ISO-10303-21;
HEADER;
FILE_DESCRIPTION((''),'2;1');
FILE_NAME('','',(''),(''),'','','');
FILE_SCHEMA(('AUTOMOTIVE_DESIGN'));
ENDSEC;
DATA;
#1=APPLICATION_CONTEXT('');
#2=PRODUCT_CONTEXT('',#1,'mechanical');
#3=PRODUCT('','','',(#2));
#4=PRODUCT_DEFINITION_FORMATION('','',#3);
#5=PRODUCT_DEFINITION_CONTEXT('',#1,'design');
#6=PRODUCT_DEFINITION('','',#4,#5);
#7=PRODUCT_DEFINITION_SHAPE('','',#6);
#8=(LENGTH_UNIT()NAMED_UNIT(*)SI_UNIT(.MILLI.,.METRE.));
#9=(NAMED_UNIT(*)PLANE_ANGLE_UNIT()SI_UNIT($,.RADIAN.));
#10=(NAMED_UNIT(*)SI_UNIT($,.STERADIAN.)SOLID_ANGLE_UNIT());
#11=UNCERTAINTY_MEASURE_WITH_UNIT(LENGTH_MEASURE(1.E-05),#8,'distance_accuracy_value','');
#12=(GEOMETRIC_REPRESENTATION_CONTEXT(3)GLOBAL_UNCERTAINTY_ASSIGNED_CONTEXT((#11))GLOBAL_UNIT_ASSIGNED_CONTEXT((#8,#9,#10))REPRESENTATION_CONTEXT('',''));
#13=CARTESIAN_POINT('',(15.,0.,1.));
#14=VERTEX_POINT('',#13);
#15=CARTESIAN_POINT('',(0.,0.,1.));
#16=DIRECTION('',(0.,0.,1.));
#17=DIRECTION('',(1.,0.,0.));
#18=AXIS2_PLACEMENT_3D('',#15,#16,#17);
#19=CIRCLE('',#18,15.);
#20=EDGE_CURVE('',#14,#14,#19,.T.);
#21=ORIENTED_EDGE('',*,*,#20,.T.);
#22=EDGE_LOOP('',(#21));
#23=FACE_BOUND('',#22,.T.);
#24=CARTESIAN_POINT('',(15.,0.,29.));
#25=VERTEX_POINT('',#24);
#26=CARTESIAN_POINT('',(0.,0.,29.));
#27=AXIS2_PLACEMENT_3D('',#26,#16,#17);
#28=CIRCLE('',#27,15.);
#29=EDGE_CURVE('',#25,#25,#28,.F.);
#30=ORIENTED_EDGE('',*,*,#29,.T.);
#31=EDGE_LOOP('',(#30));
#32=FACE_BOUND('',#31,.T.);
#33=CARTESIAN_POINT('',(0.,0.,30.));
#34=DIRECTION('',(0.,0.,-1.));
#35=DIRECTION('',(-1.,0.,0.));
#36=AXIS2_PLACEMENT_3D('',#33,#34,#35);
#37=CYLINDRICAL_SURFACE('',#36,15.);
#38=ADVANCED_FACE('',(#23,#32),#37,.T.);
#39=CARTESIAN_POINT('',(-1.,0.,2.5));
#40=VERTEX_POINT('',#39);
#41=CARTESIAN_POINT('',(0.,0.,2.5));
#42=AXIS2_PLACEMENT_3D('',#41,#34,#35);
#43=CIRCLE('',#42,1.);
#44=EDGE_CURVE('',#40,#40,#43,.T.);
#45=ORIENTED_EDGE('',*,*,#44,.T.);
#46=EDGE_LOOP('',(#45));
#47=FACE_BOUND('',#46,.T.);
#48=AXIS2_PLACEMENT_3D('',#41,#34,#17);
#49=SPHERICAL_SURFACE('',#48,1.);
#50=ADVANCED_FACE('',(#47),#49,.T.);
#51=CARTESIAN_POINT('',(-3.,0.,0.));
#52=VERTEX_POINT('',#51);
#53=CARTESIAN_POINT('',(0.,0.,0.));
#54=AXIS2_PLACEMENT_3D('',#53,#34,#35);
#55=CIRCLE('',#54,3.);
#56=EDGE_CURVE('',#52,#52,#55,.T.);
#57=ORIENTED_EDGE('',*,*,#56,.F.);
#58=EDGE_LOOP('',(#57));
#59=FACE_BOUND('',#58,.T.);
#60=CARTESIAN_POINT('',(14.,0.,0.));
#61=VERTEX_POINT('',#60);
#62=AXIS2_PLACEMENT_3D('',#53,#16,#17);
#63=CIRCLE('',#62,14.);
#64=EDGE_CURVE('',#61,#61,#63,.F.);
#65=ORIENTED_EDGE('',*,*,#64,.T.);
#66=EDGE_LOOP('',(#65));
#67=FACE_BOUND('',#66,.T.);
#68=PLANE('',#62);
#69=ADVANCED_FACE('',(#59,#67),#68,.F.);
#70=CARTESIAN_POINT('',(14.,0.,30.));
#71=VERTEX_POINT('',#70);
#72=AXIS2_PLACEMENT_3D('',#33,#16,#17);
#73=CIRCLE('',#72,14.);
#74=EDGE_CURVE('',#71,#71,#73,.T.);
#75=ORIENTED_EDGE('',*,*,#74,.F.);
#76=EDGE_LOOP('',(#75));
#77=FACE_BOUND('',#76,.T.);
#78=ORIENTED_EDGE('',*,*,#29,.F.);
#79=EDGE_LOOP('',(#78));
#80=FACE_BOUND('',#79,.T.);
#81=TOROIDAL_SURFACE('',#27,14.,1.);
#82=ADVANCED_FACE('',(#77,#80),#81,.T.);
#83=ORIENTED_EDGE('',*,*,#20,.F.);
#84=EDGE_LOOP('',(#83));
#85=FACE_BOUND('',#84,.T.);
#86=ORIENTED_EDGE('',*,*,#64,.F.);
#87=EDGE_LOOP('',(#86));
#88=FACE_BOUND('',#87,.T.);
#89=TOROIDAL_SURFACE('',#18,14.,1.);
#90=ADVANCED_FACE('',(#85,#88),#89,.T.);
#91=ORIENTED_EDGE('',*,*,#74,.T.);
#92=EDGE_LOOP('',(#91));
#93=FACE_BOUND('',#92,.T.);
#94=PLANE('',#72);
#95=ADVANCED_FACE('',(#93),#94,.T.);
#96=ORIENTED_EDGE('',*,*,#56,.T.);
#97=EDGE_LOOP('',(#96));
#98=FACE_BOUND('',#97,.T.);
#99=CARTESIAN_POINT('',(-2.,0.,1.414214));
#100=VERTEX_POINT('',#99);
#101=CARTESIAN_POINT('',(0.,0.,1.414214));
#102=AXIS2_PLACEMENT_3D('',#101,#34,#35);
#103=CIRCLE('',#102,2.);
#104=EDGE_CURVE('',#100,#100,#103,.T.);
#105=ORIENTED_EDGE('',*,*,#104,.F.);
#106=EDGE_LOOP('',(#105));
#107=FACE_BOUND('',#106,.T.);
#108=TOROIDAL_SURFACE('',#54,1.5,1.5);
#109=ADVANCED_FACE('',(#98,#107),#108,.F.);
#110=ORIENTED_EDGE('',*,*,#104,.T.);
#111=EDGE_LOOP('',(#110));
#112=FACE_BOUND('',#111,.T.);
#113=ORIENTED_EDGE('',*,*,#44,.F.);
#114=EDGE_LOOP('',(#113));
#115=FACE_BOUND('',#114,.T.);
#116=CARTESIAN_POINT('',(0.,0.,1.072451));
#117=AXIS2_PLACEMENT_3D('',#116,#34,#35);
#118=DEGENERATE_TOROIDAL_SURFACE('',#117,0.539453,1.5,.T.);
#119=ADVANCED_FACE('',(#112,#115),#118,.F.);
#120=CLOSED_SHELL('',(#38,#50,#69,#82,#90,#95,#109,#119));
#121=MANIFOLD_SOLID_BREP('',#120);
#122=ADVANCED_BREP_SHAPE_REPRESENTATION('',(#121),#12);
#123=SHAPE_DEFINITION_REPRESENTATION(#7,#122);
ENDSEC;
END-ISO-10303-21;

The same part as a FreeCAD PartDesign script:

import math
import FreeCAD as App
import Part
import Sketcher
Q = App.Units.Quantity


def edges_at(feature, points):
    """Names of the edges that pass closest to the given points."""
    edges = feature.Shape.Edges
    near = lambda p: min(range(len(edges)), key=lambda i: edges[i].distToShape(Part.Vertex(*p))[0])
    return sorted({f"Edge{near(p) + 1}" for p in points})

doc = App.newDocument("Part")
params = doc.addObject("Spreadsheet::Sheet", "Params")
for row, (alias, value) in enumerate([
    ("sketch1_diameter", "30 mm"),
    ("pad1_length", "30 mm"),
    ("fillet_radius", "1 mm"),
    ("sketch2_radius", "1 mm"),
    ("sketch2_radius2", "1.5 mm"),
    ("sketch2_width", "3 mm"),
    ("sketch2_height", "1.5 mm"),
    ("groove_angle", "360 deg"),
], start=1):
    params.set(f"A{row}", alias)
    params.set(f"B{row}", "=" + value)
    params.setAlias(f"B{row}", alias)

body = doc.addObject("PartDesign::Body", "Body")

sketch1 = doc.addObject("Sketcher::SketchObject", "Sketch")
body.addObject(sketch1)
sketch1.AttachmentSupport = (doc.XY_Plane, [""])
sketch1.MapMode = "FlatFace"
sketch1.addGeometry(Part.Circle(App.Vector(0, 0, 0), App.Vector(0, 0, 1), 15), False)
sketch1.addConstraint([
    Sketcher.Constraint("Coincident", 0, 3, -1, 1),
    Sketcher.Constraint("Diameter", 0, Q("30 mm")),
])
sketch1.setExpression("Constraints[1]", "Params.sketch1_diameter")
pad1 = doc.addObject("PartDesign::Pad", "Pad")
body.addObject(pad1)
pad1.Profile = sketch1
pad1.setExpression("Length", "Params.pad1_length")
doc.recompute()

fillet = doc.addObject("PartDesign::Fillet", "Fillet")
body.addObject(fillet)
fillet.Base = (pad1, edges_at(pad1, [(-15, 0, 0), (-15, 0, 30)]))
fillet.setExpression("Radius", "Params.fillet_radius")

sketch2 = doc.addObject("Sketcher::SketchObject", "Sketch001")
body.addObject(sketch2)
sketch2.AttachmentSupport = (doc.XZ_Plane, [""])
sketch2.MapMode = "FlatFace"
sketch2.addGeometry([
    Part.LineSegment(App.Vector(3, 0, 0), App.Vector(0, 0, 0)),
    Part.LineSegment(App.Vector(0, 0, 0), App.Vector(0, 1.5, 0)),
    Part.ArcOfCircle(Part.Circle(App.Vector(0, 2.5, 0), App.Vector(0, 0, 1), 1), math.radians(-90), math.radians(0)),
    Part.ArcOfCircle(Part.Circle(App.Vector(0.5, 1.1, 0), App.Vector(0, 0, 1), 1.5), math.radians(13), math.radians(72)),
    Part.ArcOfCircle(Part.Circle(App.Vector(1.5, 0, 0), App.Vector(0, 0, 1), 1.5), math.radians(0), math.radians(71)),
], False)
sketch2.addConstraint([
    Sketcher.Constraint("Coincident", 0, 2, 1, 1),
    Sketcher.Constraint("Coincident", 1, 2, 2, 1),
    Sketcher.Constraint("Coincident", 2, 2, 3, 2),
    Sketcher.Constraint("Coincident", 3, 1, 4, 2),
    Sketcher.Constraint("Coincident", 4, 1, 0, 1),
    Sketcher.Constraint("Horizontal", 0),
    Sketcher.Constraint("Vertical", 1),
    Sketcher.Constraint("Coincident", 0, 2, -1, 1),
    Sketcher.Constraint("Equal", 3, 4),
    Sketcher.Constraint("PointOnObject", 2, 3, -2),
    Sketcher.Constraint("PointOnObject", 4, 3, -1),
    Sketcher.Constraint("Radius", 2, Q("1 mm")),
    Sketcher.Constraint("Radius", 3, Q("1.5 mm")),
    Sketcher.Constraint("DistanceX", 0, 2, 0, 1, Q("3 mm")),
    Sketcher.Constraint("DistanceY", 1, 1, 1, 2, Q("1.5 mm")),
    Sketcher.Constraint("DistanceX", -1, 1, 3, 1, Q("2 mm")),
    Sketcher.Constraint("DistanceY", 1, 2, 2, 2, Q("1 mm")),
])
sketch2.setExpression("Constraints[11]", "Params.sketch2_radius")
sketch2.setExpression("Constraints[12]", "Params.sketch2_radius2")
sketch2.setExpression("Constraints[13]", "Params.sketch2_width")
sketch2.setExpression("Constraints[14]", "Params.sketch2_height")
groove = doc.addObject("PartDesign::Groove", "Groove")
body.addObject(groove)
groove.Profile = sketch2
groove.ReferenceAxis = (sketch2, ["V_Axis"])
groove.setExpression("Angle", "Params.groove_angle")

doc.recompute()
